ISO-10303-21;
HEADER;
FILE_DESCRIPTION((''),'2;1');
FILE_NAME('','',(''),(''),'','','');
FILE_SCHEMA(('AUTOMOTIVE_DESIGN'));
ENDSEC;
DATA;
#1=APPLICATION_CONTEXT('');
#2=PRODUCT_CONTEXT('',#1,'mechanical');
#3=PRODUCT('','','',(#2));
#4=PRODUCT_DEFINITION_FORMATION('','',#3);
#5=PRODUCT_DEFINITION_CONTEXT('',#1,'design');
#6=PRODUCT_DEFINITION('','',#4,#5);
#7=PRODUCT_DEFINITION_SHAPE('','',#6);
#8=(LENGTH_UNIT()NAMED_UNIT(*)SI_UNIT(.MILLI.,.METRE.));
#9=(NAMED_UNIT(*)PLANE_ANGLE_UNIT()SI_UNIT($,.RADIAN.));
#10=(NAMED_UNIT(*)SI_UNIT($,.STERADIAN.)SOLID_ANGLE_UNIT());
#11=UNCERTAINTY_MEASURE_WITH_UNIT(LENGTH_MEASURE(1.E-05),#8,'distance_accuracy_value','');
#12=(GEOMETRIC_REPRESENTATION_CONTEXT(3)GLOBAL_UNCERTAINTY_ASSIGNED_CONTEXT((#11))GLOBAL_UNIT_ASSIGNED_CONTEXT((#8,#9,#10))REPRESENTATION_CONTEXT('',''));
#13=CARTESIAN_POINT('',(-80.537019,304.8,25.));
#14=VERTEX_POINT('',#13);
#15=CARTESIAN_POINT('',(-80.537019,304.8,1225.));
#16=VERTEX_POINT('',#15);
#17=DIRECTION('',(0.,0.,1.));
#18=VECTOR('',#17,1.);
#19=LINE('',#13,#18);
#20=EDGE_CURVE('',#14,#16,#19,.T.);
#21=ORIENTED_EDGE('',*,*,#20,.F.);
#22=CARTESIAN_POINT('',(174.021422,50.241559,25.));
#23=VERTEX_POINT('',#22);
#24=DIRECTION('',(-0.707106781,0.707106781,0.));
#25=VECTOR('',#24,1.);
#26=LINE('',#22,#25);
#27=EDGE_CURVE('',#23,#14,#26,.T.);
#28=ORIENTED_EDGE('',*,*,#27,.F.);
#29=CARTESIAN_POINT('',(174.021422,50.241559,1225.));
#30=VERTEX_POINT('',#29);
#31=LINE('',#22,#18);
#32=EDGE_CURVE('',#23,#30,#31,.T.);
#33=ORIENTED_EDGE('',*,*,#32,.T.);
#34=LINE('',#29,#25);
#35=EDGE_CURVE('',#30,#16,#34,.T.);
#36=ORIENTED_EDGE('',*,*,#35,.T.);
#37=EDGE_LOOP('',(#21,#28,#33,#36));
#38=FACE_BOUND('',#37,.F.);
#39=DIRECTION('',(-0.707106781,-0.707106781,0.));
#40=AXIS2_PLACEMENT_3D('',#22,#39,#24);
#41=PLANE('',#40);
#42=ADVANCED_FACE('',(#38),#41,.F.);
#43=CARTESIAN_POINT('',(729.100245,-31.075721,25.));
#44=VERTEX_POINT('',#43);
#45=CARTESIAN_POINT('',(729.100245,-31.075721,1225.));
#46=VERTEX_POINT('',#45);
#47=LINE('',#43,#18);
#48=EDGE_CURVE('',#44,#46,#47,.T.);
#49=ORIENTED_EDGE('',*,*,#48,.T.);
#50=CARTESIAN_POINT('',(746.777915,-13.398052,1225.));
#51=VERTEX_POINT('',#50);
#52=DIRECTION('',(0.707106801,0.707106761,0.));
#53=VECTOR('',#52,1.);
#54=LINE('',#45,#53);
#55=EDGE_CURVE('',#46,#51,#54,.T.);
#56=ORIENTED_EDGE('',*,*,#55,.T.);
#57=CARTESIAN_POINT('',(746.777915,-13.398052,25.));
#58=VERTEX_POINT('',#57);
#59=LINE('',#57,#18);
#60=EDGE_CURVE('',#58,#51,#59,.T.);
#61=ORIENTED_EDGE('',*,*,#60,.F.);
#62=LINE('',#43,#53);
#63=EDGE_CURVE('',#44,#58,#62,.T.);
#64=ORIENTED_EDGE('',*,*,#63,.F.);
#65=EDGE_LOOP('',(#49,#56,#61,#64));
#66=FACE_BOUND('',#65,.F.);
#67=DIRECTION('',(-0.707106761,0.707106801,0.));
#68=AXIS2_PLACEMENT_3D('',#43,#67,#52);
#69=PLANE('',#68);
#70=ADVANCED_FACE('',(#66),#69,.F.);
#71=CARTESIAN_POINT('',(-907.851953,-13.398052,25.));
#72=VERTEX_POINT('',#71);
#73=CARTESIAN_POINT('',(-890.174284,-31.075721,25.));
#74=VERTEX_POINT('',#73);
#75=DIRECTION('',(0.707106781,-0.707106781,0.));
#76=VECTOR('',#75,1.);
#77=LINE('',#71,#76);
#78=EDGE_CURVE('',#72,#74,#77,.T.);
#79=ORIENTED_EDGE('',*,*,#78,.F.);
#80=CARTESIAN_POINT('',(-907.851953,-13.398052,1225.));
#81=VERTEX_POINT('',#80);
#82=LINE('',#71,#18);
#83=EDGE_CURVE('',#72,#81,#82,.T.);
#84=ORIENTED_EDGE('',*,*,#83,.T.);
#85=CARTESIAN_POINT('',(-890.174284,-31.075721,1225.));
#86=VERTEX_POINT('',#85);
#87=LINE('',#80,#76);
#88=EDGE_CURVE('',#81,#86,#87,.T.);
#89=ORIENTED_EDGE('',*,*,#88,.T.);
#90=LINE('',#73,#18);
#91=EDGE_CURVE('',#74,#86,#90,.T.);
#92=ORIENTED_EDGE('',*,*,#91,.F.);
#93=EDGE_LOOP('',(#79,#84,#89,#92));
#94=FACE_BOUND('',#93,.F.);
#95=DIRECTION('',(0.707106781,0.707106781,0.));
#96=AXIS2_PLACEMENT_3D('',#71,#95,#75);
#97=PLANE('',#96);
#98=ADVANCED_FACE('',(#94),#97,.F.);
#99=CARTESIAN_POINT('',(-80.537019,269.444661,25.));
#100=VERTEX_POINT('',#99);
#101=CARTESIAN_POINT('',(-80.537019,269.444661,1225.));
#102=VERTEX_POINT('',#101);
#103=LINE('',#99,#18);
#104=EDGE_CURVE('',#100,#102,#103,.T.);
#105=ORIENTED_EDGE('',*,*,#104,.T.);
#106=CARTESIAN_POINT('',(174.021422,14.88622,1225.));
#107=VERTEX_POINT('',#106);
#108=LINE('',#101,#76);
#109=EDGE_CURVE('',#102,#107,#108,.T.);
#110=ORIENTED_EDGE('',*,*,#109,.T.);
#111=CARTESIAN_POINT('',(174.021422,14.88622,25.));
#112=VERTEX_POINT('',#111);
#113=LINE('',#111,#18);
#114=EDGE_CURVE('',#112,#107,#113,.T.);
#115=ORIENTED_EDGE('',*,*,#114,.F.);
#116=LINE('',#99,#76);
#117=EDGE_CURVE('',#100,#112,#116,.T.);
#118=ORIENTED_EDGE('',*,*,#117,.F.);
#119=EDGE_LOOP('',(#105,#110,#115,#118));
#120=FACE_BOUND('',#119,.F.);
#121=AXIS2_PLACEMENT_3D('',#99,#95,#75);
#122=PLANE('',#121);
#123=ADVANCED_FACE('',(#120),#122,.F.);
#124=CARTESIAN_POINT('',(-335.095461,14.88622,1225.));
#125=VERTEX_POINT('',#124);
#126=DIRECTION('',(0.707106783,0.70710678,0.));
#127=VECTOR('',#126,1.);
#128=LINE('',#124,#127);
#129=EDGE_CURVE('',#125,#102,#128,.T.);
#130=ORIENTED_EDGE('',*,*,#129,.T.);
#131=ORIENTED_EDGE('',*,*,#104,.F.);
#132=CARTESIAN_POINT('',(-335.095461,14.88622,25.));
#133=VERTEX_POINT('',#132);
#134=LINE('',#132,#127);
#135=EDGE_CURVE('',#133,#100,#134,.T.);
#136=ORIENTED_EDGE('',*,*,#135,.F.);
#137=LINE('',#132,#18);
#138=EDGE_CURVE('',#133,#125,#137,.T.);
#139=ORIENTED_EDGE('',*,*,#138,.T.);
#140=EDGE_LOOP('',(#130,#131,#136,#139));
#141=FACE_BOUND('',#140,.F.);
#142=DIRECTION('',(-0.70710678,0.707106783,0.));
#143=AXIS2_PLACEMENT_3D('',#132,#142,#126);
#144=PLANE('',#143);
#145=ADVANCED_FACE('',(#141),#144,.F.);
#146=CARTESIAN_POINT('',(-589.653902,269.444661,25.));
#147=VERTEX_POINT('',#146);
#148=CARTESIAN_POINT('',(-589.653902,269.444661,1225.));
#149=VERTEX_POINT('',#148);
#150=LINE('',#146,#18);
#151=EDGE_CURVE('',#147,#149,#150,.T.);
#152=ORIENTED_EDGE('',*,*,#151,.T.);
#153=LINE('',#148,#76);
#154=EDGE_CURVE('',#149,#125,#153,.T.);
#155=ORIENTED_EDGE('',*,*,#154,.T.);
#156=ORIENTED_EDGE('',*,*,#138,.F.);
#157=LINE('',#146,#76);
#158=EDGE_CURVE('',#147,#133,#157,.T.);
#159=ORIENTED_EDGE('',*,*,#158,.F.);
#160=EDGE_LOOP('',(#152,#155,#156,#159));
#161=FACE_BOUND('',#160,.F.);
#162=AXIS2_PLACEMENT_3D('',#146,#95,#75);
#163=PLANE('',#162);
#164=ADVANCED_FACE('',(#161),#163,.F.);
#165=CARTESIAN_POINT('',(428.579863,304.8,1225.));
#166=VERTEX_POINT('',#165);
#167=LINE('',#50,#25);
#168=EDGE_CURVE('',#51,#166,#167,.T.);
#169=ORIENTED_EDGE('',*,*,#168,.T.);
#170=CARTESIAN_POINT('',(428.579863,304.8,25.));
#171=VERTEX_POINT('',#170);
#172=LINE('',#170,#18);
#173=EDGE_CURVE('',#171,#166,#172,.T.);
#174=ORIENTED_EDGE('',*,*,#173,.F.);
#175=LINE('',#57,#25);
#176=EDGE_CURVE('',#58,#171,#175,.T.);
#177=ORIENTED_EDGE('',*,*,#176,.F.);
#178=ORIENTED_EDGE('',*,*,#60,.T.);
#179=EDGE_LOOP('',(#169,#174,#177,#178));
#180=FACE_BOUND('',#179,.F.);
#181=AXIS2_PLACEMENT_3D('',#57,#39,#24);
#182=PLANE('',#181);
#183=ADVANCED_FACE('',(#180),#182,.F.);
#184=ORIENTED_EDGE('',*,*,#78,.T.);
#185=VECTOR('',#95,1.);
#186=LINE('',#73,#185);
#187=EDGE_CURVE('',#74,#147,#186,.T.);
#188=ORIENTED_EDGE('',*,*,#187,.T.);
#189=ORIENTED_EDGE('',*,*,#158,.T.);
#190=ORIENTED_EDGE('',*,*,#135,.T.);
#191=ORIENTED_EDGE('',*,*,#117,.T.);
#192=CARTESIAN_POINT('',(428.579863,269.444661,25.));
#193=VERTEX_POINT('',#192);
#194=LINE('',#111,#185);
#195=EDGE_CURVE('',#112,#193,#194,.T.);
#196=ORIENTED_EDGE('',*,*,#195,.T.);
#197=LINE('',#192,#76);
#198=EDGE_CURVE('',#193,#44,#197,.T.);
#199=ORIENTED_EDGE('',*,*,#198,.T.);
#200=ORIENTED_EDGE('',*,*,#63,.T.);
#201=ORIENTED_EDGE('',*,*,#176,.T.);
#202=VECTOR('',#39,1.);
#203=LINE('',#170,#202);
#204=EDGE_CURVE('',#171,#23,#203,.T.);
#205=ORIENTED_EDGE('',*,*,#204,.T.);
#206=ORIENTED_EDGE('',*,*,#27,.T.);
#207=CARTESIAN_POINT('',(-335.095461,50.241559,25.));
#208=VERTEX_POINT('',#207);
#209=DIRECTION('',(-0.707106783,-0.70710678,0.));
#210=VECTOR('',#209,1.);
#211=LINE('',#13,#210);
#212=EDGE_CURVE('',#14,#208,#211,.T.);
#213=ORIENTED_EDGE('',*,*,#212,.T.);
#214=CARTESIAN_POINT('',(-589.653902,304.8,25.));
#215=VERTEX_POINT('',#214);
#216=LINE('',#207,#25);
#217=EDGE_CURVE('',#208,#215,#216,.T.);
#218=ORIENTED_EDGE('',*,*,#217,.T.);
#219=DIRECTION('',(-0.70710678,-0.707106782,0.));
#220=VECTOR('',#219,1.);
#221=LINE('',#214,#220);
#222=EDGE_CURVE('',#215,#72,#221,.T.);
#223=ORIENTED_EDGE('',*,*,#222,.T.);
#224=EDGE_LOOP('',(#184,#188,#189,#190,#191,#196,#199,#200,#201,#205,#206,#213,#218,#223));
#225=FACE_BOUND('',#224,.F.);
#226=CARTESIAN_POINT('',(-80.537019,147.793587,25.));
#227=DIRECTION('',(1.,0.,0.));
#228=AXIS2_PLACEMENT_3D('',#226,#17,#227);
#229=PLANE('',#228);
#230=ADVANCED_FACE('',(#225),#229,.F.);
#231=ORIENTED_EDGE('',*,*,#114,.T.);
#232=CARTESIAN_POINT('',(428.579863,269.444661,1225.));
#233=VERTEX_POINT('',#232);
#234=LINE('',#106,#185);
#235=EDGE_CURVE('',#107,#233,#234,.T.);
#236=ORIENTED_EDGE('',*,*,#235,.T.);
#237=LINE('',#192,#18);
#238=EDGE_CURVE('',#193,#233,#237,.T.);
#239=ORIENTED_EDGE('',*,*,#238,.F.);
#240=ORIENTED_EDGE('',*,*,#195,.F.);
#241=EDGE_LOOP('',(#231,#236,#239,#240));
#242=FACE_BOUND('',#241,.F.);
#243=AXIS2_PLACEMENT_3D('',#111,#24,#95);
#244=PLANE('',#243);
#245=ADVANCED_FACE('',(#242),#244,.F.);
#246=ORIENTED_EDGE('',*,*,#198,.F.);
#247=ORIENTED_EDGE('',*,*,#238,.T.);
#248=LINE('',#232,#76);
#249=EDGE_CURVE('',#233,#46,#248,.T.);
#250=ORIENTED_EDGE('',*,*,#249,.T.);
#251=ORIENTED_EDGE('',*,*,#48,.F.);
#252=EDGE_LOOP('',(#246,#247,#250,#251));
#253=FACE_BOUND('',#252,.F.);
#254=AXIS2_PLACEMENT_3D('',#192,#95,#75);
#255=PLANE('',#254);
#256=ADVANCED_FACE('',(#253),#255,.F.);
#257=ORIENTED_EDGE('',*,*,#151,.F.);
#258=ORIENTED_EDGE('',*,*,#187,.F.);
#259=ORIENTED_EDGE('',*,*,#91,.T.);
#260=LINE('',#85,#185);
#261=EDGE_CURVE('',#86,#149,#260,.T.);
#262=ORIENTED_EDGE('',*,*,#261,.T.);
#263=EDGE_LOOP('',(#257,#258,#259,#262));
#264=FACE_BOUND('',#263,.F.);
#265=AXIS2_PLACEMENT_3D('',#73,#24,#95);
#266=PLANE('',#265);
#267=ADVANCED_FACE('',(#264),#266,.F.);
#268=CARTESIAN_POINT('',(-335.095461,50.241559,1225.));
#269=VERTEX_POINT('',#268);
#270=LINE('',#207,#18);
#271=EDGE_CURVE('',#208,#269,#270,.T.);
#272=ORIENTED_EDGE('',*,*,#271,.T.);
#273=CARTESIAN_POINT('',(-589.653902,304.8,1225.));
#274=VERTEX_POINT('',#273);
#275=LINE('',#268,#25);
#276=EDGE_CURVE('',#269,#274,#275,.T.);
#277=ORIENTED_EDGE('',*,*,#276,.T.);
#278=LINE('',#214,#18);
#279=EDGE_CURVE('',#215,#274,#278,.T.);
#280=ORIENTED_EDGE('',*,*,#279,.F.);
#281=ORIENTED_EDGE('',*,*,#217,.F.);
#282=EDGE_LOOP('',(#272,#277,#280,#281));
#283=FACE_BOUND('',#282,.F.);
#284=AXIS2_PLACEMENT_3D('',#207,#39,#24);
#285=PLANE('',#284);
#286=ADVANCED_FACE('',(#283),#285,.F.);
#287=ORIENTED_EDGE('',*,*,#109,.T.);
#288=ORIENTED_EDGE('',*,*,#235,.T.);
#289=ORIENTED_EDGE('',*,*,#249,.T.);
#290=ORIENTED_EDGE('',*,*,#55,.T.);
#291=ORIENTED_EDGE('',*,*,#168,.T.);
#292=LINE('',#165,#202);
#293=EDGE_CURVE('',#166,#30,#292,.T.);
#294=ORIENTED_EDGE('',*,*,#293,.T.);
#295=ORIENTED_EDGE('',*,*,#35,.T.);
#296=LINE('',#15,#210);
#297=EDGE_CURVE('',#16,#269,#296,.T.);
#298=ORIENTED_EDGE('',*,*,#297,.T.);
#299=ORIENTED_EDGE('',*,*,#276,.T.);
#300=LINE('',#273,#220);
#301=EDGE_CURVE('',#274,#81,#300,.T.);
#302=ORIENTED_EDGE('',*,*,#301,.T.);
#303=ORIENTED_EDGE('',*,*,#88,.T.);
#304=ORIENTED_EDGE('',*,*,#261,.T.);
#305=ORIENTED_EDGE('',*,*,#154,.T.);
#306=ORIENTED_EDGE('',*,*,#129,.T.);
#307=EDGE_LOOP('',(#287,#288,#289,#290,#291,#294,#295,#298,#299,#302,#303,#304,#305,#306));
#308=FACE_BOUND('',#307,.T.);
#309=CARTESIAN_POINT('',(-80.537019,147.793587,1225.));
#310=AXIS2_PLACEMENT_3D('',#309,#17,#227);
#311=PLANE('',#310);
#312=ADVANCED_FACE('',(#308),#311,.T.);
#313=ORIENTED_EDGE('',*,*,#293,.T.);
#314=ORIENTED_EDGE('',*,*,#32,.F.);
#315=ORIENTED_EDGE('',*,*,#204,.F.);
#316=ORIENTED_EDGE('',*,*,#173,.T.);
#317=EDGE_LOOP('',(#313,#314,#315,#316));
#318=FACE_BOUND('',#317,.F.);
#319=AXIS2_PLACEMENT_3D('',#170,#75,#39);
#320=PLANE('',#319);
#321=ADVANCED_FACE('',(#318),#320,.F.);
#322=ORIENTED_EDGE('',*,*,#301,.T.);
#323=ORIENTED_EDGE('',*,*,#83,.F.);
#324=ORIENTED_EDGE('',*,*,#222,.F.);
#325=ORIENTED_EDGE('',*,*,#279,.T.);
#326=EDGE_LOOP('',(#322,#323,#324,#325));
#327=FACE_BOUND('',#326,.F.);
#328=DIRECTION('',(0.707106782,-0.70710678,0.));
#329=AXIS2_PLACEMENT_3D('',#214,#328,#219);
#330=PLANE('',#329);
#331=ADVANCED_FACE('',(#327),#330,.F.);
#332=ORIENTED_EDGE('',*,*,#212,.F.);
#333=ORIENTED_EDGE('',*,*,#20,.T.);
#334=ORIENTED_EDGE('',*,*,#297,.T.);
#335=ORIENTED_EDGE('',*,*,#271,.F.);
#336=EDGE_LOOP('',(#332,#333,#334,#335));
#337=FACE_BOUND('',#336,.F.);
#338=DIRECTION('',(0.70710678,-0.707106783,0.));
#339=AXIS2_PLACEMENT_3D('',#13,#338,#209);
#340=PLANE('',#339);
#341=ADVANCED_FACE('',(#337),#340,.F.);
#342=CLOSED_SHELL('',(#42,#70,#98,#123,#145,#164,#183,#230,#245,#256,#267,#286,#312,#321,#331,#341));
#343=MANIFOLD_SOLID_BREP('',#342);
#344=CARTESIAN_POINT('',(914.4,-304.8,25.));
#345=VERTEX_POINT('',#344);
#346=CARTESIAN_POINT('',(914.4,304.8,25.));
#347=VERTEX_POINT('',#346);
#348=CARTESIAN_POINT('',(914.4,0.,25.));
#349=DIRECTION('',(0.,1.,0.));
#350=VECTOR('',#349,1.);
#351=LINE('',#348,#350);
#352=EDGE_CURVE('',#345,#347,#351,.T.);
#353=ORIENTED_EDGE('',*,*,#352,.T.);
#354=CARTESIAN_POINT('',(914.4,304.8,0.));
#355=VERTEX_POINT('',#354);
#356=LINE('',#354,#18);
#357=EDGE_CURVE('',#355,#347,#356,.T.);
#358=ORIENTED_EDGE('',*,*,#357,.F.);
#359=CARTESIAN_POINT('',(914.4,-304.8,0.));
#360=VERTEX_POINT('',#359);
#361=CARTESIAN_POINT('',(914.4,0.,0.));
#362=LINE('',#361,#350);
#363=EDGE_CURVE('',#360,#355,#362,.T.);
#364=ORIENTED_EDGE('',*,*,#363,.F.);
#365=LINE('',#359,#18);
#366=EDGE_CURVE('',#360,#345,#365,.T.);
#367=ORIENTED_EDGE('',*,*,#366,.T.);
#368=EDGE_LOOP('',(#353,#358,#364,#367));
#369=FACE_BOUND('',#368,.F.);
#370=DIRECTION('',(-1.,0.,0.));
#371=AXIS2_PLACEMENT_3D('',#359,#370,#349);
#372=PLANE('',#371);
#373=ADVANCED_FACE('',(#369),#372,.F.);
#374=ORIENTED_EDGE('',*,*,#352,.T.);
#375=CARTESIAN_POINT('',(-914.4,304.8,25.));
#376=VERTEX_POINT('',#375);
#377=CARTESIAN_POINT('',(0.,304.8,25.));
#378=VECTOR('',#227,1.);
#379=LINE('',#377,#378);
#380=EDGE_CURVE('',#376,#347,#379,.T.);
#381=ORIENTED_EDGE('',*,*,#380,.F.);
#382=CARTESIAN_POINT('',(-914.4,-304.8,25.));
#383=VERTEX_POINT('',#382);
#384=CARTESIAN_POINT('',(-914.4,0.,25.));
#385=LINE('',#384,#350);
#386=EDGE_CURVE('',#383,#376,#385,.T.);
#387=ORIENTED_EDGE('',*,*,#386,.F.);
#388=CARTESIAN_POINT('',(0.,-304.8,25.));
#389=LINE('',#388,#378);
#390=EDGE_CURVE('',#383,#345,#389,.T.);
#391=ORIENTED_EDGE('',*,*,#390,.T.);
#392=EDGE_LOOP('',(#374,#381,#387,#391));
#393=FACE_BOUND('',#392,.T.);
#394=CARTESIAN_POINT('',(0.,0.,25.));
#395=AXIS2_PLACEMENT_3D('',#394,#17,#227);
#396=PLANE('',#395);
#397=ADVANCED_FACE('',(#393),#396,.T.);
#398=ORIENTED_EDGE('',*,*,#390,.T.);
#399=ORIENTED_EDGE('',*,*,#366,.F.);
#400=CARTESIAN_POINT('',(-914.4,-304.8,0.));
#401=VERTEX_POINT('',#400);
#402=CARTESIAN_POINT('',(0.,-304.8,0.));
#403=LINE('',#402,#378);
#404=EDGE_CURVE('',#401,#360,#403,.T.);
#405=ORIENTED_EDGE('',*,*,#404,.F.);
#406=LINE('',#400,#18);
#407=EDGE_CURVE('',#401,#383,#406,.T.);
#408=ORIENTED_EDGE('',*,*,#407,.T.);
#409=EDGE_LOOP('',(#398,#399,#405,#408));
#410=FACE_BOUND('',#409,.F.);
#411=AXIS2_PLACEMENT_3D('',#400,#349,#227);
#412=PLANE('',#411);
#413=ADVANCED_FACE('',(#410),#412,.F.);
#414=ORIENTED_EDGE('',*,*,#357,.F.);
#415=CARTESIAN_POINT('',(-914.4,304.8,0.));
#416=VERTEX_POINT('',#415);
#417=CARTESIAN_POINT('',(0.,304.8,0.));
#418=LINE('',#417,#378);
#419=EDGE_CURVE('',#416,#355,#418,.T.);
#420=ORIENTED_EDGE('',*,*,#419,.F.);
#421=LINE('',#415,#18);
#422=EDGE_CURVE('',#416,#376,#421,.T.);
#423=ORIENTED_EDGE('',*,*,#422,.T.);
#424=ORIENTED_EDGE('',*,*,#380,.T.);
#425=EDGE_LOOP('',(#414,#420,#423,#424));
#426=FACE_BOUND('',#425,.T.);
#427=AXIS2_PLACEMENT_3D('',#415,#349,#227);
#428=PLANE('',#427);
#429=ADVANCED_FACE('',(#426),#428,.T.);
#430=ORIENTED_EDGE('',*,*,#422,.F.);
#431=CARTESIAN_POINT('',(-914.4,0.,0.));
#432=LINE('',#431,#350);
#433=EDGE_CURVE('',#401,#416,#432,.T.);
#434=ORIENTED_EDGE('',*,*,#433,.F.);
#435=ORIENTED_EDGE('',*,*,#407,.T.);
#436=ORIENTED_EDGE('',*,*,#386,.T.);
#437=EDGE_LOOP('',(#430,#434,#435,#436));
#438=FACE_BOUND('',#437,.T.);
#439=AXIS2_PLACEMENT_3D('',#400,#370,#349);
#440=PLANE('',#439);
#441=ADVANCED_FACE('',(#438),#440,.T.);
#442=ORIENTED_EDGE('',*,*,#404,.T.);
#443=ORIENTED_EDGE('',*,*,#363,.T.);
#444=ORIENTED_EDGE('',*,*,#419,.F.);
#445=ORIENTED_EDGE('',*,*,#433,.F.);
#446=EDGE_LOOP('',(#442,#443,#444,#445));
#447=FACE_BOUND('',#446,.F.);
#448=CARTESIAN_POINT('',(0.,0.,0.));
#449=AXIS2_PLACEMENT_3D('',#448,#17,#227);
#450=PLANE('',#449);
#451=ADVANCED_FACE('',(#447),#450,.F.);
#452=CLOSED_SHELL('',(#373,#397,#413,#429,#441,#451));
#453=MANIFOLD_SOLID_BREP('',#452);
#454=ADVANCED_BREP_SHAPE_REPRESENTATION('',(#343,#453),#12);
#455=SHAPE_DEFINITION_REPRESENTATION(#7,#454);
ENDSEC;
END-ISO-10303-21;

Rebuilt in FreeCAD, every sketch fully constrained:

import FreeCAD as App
import Part
import Sketcher
Q = App.Units.Quantity


def add_polygon(sketch, points):
    """Adds a closed chain of lines whose ends are joined by coincident constraints."""
    first, n = sketch.GeometryCount, len(points)
    for a, b in zip(points, points[1:] + points[:1]):
        sketch.addGeometry(Part.LineSegment(App.Vector(*a, 0), App.Vector(*b, 0)), False)
    for i in range(n):
        sketch.addConstraint(Sketcher.Constraint("Coincident", first + i, 2, first + (i + 1) % n, 1))

doc = App.newDocument("Part")
params = doc.addObject("Spreadsheet::Sheet", "Params")
for row, (alias, value) in enumerate([
    ("sketch1_width", "1828.8 mm"),
    ("sketch1_height", "609.6 mm"),
    ("pad1_length", "25 mm"),
    ("sketch2_length", "360 mm"),
    ("sketch2_length2", "450 mm"),
    ("sketch2_length3", "24.999999 mm"),
    ("pad2_length", "1200 mm"),
], start=1):
    params.set(f"A{row}", alias)
    params.set(f"B{row}", "=" + value)
    params.setAlias(f"B{row}", alias)

body = doc.addObject("PartDesign::Body", "Body")

sketch1 = body.newObject("Sketcher::SketchObject", "Sketch")
sketch1.AttachmentSupport = (doc.getObject("XY_Plane"), [""])
sketch1.MapMode = "FlatFace"
add_polygon(sketch1, [(-914, 305), (-914, -305), (914, -305), (914, 305)])
sketch1.addConstraint([
    Sketcher.Constraint("Vertical", 0),
    Sketcher.Constraint("Horizontal", 1),
    Sketcher.Constraint("Vertical", 2),
    Sketcher.Constraint("Horizontal", 3),
    Sketcher.Constraint("Symmetric", 0, 2, 2, 2, -1, 1),
    Sketcher.Constraint("DistanceX", 1, 1, 1, 2, Q("1828.8 mm")),
    Sketcher.Constraint("DistanceY", 0, 2, 0, 1, Q("609.6 mm")),
])
sketch1.setExpression("Constraints[9]", "Params.sketch1_width")
sketch1.setExpression("Constraints[10]", "Params.sketch1_height")
pad1 = body.newObject("PartDesign::Pad", "Pad")
pad1.Profile = sketch1
pad1.setExpression("Length", "Params.pad1_length")
body2 = doc.addObject("PartDesign::Body", "Body001")

sketch2 = body2.newObject("Sketcher::SketchObject", "Sketch001")
sketch2.AttachmentSupport = (doc.getObject("XY_Plane001"), [""])
sketch2.MapMode = "FlatFace"
sketch2.AttachmentOffset = App.Placement(App.Vector(0, 0, 25), App.Rotation())
add_polygon(sketch2, [(-335, 50), (-590, 305), (-908, -13), (-890, -31), (-590, 269), (-335, 15), (-81, 269), (174, 15), (429, 269), (729, -31), (747, -13), (429, 305), (174, 50), (-81, 305)])
sketch2.addConstraint([
    Sketcher.Constraint("Perpendicular", 0, 1),
    Sketcher.Constraint("Perpendicular", 1, 2),
    Sketcher.Constraint("Perpendicular", 2, 3),
    Sketcher.Constraint("Perpendicular", 3, 4),
    Sketcher.Constraint("Perpendicular", 4, 5),
    Sketcher.Constraint("Perpendicular", 5, 6),
    Sketcher.Constraint("Perpendicular", 6, 7),
    Sketcher.Constraint("Perpendicular", 7, 8),
    Sketcher.Constraint("Perpendicular", 8, 9),
    Sketcher.Constraint("Perpendicular", 9, 10),
    Sketcher.Constraint("Perpendicular", 10, 11),
    Sketcher.Constraint("Perpendicular", 11, 12),
    Sketcher.Constraint("Perpendicular", 12, 13),
    Sketcher.Constraint("Horizontal", 3, 2, 5, 2),
    Sketcher.Constraint("Horizontal", 4, 2, 6, 2),
    Sketcher.Constraint("Horizontal", 5, 2, 7, 2),
    Sketcher.Constraint("Horizontal", 2, 2, 8, 2),
    Sketcher.Constraint("Horizontal", 1, 2, 9, 2),
    Sketcher.Constraint("Horizontal", 0, 2, 10, 2),
    Sketcher.Constraint("Horizontal", 10, 2, 12, 2),
    Sketcher.Constraint("Horizontal", 11, 2, 13, 2),
    Sketcher.Constraint("Vertical", 0, 2, 3, 2),
    Sketcher.Constraint("Vertical", 7, 2, 10, 2),
    Sketcher.Constraint("Distance", 0, Q("360 mm")),
    Sketcher.Constraint("Distance", 1, Q("450 mm")),
    Sketcher.Constraint("Distance", 2, Q("24.999999 mm")),
    Sketcher.Constraint("DistanceY", -1, 1, 0, 2, Q("304.8 mm")),
    Sketcher.Constraint("DistanceX", 0, 2, -1, 1, Q("589.653902 mm")),
])
sketch2.setExpression("Constraints[37]", "Params.sketch2_length")
sketch2.setExpression("Constraints[38]", "Params.sketch2_length2")
sketch2.setExpression("Constraints[39]", "Params.sketch2_length3")
pad2 = body2.newObject("PartDesign::Pad", "Pad001")
pad2.Profile = sketch2
pad2.setExpression("Length", "Params.pad2_length")

doc.recompute()
